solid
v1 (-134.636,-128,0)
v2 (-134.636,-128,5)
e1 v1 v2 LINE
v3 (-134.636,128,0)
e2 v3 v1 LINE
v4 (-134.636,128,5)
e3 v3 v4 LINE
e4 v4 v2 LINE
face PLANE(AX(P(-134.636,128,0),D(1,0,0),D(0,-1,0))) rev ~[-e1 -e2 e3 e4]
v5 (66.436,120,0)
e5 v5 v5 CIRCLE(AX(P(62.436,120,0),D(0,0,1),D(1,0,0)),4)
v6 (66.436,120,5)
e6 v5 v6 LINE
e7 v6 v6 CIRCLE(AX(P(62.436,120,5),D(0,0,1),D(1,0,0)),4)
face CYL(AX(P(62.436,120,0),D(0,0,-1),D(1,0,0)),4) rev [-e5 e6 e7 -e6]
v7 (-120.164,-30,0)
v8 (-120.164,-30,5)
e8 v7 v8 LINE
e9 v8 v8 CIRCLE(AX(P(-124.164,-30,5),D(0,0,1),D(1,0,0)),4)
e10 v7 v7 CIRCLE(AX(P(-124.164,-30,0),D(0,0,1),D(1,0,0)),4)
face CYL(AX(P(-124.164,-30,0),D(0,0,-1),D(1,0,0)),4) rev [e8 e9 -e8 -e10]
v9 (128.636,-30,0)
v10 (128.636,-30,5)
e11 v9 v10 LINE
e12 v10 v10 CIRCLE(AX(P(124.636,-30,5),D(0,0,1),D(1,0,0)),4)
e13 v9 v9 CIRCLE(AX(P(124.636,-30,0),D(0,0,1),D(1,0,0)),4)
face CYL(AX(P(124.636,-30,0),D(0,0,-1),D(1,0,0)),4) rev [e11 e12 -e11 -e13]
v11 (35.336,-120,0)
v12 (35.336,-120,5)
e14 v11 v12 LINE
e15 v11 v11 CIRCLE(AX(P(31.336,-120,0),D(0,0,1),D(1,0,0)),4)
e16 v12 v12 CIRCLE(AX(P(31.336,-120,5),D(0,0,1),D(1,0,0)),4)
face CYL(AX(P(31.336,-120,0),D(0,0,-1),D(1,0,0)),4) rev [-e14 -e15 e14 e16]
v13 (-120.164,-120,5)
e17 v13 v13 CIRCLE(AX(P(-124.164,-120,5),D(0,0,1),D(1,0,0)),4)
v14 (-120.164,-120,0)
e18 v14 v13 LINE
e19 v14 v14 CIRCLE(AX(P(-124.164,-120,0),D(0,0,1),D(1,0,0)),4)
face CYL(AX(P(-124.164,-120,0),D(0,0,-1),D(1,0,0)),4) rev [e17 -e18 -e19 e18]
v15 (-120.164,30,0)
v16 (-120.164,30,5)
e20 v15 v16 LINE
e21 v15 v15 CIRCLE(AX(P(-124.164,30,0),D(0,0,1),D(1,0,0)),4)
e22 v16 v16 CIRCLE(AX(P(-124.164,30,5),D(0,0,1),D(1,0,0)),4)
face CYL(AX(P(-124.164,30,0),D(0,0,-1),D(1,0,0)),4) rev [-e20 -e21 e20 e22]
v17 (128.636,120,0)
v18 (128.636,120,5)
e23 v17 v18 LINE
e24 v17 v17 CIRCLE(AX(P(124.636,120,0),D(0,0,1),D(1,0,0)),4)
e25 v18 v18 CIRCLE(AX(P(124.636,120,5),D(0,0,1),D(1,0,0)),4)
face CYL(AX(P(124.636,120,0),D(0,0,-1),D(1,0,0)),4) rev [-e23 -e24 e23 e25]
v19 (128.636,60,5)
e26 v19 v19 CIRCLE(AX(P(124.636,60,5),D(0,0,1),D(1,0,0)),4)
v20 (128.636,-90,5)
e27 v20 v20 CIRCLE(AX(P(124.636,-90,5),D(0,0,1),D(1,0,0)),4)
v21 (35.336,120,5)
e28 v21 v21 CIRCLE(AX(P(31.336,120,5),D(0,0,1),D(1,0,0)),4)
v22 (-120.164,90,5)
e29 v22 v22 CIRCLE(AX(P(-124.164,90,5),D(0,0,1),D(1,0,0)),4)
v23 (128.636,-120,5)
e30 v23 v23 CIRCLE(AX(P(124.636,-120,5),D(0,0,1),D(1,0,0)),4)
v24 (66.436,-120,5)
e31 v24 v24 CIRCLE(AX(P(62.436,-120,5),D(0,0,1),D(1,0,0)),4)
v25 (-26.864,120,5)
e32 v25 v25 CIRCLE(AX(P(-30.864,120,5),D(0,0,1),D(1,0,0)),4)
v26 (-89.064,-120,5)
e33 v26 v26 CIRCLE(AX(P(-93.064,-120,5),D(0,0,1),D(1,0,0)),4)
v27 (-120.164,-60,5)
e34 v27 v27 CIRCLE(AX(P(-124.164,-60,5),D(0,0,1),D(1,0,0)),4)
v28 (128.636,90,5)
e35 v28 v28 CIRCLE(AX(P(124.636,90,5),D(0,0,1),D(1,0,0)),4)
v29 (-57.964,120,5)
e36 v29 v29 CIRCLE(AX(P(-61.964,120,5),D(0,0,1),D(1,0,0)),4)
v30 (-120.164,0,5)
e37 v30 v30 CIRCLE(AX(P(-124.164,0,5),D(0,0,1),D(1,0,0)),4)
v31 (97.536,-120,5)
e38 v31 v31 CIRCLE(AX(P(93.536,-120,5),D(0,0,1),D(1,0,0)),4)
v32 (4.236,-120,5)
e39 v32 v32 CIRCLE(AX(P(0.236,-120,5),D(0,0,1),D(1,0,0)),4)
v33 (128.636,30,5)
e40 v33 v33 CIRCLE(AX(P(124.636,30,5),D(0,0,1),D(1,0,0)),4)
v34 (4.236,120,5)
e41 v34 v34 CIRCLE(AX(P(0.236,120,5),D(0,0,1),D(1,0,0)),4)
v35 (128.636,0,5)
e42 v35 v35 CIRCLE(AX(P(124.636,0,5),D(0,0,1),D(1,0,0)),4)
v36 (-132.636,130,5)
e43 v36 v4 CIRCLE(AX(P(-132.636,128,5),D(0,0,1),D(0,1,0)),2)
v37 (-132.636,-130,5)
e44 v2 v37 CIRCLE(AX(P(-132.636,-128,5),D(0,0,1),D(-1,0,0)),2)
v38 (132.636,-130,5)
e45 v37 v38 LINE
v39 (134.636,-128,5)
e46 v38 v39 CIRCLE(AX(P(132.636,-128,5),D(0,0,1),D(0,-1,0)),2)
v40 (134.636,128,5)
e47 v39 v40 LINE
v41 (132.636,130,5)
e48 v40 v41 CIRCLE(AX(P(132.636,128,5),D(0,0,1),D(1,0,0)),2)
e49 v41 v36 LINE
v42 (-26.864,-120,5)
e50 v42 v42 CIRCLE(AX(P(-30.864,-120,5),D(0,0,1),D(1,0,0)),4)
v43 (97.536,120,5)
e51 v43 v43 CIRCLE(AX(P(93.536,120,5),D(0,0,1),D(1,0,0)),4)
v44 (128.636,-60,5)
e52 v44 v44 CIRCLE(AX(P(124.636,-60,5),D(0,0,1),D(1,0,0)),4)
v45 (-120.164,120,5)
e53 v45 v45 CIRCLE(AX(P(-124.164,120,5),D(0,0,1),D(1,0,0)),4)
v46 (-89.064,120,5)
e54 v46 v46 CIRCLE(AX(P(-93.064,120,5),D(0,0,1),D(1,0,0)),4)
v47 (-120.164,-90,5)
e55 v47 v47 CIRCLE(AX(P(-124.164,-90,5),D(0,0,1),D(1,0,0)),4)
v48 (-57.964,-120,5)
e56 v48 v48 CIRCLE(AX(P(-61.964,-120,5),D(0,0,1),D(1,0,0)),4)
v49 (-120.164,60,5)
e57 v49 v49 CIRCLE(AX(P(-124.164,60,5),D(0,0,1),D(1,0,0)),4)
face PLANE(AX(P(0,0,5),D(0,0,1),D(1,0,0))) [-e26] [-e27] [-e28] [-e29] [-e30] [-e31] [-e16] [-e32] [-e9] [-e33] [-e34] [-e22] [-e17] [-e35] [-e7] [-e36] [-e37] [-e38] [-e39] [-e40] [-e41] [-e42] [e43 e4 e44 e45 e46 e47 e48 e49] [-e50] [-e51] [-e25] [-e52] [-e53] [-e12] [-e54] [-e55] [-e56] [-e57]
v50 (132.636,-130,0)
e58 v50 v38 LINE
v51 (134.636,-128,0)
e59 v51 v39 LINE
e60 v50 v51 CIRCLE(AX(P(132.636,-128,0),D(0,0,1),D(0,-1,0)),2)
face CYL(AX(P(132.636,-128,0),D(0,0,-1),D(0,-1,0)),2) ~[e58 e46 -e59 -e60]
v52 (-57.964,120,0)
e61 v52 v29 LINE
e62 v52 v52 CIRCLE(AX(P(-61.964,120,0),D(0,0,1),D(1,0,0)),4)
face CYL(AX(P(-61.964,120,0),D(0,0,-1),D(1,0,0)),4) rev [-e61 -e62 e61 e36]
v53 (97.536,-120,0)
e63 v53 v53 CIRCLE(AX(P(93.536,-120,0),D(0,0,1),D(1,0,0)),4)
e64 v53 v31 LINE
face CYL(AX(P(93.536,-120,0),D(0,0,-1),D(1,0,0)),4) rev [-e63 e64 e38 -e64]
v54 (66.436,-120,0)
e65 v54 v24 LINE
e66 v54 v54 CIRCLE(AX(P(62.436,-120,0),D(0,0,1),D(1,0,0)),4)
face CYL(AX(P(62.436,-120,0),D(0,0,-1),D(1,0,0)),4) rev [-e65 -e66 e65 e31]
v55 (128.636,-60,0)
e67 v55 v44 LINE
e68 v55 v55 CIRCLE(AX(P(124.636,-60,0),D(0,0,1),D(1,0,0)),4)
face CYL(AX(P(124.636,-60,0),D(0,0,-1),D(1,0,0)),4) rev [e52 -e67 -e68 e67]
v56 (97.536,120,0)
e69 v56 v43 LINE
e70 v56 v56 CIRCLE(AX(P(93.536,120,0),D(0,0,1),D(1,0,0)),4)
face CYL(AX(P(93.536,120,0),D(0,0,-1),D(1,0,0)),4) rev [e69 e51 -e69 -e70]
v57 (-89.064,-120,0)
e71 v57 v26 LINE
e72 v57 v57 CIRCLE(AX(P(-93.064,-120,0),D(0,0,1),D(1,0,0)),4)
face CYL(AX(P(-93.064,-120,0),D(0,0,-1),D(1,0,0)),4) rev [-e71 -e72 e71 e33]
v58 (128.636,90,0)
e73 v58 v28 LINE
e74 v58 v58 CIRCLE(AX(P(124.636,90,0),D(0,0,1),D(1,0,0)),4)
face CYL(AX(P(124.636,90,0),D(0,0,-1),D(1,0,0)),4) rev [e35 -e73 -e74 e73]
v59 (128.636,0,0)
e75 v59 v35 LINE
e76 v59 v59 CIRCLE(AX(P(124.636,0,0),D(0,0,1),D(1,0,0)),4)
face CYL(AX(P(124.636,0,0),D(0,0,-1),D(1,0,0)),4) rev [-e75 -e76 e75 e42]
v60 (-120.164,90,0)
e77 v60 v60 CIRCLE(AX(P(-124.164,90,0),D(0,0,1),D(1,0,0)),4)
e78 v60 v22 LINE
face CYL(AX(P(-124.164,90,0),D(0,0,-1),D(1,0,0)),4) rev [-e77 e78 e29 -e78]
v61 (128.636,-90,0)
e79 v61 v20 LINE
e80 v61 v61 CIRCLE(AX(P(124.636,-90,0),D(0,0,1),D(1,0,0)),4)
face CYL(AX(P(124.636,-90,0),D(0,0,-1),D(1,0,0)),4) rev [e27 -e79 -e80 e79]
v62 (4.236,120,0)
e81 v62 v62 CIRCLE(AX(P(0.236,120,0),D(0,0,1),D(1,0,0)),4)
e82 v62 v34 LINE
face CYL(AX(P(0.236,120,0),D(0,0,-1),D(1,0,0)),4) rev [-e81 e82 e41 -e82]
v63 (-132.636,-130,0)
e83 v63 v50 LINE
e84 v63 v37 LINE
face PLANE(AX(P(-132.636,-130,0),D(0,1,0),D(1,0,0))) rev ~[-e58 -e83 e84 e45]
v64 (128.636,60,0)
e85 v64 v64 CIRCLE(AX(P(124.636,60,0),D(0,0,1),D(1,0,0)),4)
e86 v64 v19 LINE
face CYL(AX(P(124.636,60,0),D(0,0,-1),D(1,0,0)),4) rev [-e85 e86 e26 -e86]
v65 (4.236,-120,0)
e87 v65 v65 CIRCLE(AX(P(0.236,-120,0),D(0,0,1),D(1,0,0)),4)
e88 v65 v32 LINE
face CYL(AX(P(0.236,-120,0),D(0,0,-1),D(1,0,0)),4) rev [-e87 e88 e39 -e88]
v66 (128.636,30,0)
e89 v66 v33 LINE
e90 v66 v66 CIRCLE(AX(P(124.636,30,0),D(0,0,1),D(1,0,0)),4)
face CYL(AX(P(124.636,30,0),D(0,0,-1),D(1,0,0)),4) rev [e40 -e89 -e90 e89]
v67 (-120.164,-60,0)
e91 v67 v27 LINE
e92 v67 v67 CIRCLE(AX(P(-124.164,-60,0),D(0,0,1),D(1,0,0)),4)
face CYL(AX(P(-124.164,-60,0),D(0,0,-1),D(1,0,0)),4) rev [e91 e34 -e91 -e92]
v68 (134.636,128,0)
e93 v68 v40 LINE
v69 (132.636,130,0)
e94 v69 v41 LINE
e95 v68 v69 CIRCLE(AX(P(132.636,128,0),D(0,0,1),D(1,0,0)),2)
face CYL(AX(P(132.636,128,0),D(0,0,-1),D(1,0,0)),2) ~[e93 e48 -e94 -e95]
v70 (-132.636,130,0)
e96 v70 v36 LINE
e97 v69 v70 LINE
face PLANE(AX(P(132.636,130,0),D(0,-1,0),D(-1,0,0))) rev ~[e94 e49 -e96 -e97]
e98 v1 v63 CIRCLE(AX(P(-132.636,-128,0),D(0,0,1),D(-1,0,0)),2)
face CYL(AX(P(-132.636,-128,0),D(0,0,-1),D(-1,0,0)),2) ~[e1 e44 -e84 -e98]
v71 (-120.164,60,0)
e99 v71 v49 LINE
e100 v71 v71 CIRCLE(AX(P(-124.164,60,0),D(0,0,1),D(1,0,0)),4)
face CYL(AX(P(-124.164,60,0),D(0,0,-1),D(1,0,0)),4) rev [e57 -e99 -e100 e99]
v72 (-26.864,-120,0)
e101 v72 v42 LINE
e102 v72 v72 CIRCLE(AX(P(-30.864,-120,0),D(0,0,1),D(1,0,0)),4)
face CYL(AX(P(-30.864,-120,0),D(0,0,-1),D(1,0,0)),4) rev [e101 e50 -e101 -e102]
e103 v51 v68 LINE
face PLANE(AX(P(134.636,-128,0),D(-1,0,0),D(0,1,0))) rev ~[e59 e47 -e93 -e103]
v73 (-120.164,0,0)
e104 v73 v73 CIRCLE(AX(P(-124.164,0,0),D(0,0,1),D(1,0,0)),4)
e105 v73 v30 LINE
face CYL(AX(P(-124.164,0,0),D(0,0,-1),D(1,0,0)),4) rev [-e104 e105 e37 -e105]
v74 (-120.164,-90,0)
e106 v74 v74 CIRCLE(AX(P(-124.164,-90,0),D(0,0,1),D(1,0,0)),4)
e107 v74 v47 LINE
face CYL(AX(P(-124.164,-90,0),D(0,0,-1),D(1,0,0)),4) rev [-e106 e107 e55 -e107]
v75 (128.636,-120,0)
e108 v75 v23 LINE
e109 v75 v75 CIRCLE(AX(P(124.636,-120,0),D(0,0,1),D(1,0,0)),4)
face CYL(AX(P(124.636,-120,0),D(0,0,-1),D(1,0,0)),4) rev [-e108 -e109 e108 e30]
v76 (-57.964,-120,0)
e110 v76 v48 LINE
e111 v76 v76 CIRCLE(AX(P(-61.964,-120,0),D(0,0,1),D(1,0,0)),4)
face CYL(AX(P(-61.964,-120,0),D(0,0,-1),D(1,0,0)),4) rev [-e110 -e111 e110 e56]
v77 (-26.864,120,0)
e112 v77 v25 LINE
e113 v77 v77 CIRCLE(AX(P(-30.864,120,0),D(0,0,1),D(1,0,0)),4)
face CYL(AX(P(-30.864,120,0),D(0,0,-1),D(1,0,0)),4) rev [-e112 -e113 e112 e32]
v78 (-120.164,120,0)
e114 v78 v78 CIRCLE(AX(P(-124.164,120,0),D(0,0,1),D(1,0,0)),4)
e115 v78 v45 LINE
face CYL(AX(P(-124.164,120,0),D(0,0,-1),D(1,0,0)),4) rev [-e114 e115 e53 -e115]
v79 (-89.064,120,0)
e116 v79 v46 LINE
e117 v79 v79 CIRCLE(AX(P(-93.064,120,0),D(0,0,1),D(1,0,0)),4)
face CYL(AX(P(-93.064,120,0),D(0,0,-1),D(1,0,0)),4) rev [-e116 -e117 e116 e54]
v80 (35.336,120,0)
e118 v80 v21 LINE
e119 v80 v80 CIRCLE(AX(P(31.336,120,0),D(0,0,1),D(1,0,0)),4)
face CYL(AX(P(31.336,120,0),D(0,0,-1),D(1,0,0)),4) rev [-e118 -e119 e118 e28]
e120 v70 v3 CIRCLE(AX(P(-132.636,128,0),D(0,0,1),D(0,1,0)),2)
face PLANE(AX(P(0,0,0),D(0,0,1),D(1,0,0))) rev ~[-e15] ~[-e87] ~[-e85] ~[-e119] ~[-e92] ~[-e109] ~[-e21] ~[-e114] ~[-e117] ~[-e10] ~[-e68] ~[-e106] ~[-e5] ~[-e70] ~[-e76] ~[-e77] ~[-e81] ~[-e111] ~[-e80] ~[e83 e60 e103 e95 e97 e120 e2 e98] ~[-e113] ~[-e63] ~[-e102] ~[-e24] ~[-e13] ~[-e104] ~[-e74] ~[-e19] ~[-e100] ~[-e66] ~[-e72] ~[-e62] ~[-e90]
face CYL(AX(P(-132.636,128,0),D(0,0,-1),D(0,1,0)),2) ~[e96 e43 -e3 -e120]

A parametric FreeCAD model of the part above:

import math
import FreeCAD as App
import Part
import Sketcher
from FreeCAD import Vector

doc = App.newDocument("Part")
params = doc.addObject("Spreadsheet::Sheet", "Params")
for row, (alias, value) in enumerate([
    ("sketch1_diameter", "8 mm"),
    ("sketch1_radius", "2 mm"),
    ("sketch1_height", "256 mm"),
    ("pad1_length", "5 mm"),
], start=1):
    params.set(f"A{row}", alias)
    params.set(f"B{row}", "=" + value)
    params.setAlias(f"B{row}", alias)

body = doc.addObject("PartDesign::Body", "Body")

# Sketch on XY plane
sketch1 = doc.addObject("Sketcher::SketchObject", "Sketch")
body.addObject(sketch1)
sketch1.AttachmentSupport = (doc.XY_Plane, [""])
sketch1.MapMode = "FlatFace"
sketch1.addGeometry([
    Part.ArcOfCircle(Part.Circle(Vector(-132.6, -128, 0), Vector(0, 0, 1), 2), math.radians(180), math.radians(270)),  # 0
    Part.LineSegment(Vector(-132.6, -130, 0), Vector(132.6, -130, 0)),  # 1
    Part.ArcOfCircle(Part.Circle(Vector(132.6, -128, 0), Vector(0, 0, 1), 2), math.radians(-90), math.radians(0)),  # 2
    Part.LineSegment(Vector(134.6, -128, 0), Vector(134.6, 128, 0)),  # 3
    Part.ArcOfCircle(Part.Circle(Vector(132.6, 128, 0), Vector(0, 0, 1), 2), math.radians(0), math.radians(90)),  # 4
    Part.LineSegment(Vector(132.6, 130, 0), Vector(-132.6, 130, 0)),  # 5
    Part.ArcOfCircle(Part.Circle(Vector(-132.6, 128, 0), Vector(0, 0, 1), 2), math.radians(90), math.radians(180)),  # 6
    Part.LineSegment(Vector(-134.6, 128, 0), Vector(-134.6, -128, 0)),  # 7
    Part.Circle(Vector(-124.2, -120, 0), Vector(0, 0, 1), 4),  # 8
    Part.Circle(Vector(-93.1, -120, 0), Vector(0, 0, 1), 4),  # 9
    Part.Circle(Vector(-124.2, -90, 0), Vector(0, 0, 1), 4),  # 10
    Part.Circle(Vector(-62, -120, 0), Vector(0, 0, 1), 4),  # 11
    Part.Circle(Vector(-30.9, -120, 0), Vector(0, 0, 1), 4),  # 12
    Part.Circle(Vector(-124.2, -60, 0), Vector(0, 0, 1), 4),  # 13
    Part.Circle(Vector(-124.2, -30, 0), Vector(0, 0, 1), 4),  # 14
    Part.Circle(Vector(0.2, -120, 0), Vector(0, 0, 1), 4),  # 15
    Part.Circle(Vector(31.3, -120, 0), Vector(0, 0, 1), 4),  # 16
    Part.Circle(Vector(62.4, -120, 0), Vector(0, 0, 1), 4),  # 17
    Part.Circle(Vector(93.5, -120, 0), Vector(0, 0, 1), 4),  # 18
    Part.Circle(Vector(124.6, -120, 0), Vector(0, 0, 1), 4),  # 19
    Part.Circle(Vector(124.6, -90, 0), Vector(0, 0, 1), 4),  # 20
    Part.Circle(Vector(124.6, -60, 0), Vector(0, 0, 1), 4),  # 21
    Part.Circle(Vector(124.6, -30, 0), Vector(0, 0, 1), 4),  # 22
    Part.Circle(Vector(-124.2, 0, 0), Vector(0, 0, 1), 4),  # 23
    Part.Circle(Vector(-124.2, 30, 0), Vector(0, 0, 1), 4),  # 24
    Part.Circle(Vector(-124.2, 60, 0), Vector(0, 0, 1), 4),  # 25
    Part.Circle(Vector(-124.2, 90, 0), Vector(0, 0, 1), 4),  # 26
    Part.Circle(Vector(-124.2, 120, 0), Vector(0, 0, 1), 4),  # 27
    Part.Circle(Vector(-93.1, 120, 0), Vector(0, 0, 1), 4),  # 28
    Part.Circle(Vector(-62, 120, 0), Vector(0, 0, 1), 4),  # 29
    Part.Circle(Vector(-30.9, 120, 0), Vector(0, 0, 1), 4),  # 30
    Part.Circle(Vector(124.6, 0, 0), Vector(0, 0, 1), 4),  # 31
    Part.Circle(Vector(124.6, 30, 0), Vector(0, 0, 1), 4),  # 32
    Part.Circle(Vector(124.6, 60, 0), Vector(0, 0, 1), 4),  # 33
    Part.Circle(Vector(0.2, 120, 0), Vector(0, 0, 1), 4),  # 34
    Part.Circle(Vector(31.3, 120, 0), Vector(0, 0, 1), 4),  # 35
    Part.Circle(Vector(62.4, 120, 0), Vector(0, 0, 1), 4),  # 36
    Part.Circle(Vector(124.6, 90, 0), Vector(0, 0, 1), 4),  # 37
    Part.Circle(Vector(93.5, 120, 0), Vector(0, 0, 1), 4),  # 38
    Part.Circle(Vector(124.6, 120, 0), Vector(0, 0, 1), 4),  # 39
], False)
sketch1.addConstraint([
    Sketcher.Constraint("Tangent", 0, 2, 1, 1),
    Sketcher.Constraint("Tangent", 1, 2, 2, 1),
    Sketcher.Constraint("Tangent", 2, 2, 3, 1),
    Sketcher.Constraint("Tangent", 3, 2, 4, 1),
    Sketcher.Constraint("Tangent", 4, 2, 5, 1),
    Sketcher.Constraint("Tangent", 5, 2, 6, 1),
    Sketcher.Constraint("Tangent", 6, 2, 7, 1),
    Sketcher.Constraint("Tangent", 7, 2, 0, 1),
    Sketcher.Constraint("Horizontal", 1),
    Sketcher.Constraint("Vertical", 3),
    Sketcher.Constraint("Horizontal", 5),
    Sketcher.Constraint("Vertical", 7),
    Sketcher.Constraint("Equal", 0, 2),
    Sketcher.Constraint("Equal", 2, 4),
    Sketcher.Constraint("Equal", 4, 6),
    Sketcher.Constraint("Equal", 8, 9),
    Sketcher.Constraint("Equal", 9, 10),
    Sketcher.Constraint("Equal", 10, 11),
    Sketcher.Constraint("Equal", 11, 12),
    Sketcher.Constraint("Equal", 12, 13),
    Sketcher.Constraint("Equal", 13, 14),
    Sketcher.Constraint("Equal", 14, 15),
    Sketcher.Constraint("Equal", 15, 16),
    Sketcher.Constraint("Equal", 16, 17),
    Sketcher.Constraint("Equal", 17, 18),
    Sketcher.Constraint("Equal", 18, 19),
    Sketcher.Constraint("Equal", 19, 20),
    Sketcher.Constraint("Equal", 20, 21),
    Sketcher.Constraint("Equal", 21, 22),
    Sketcher.Constraint("Equal", 22, 23),
    Sketcher.Constraint("Equal", 23, 24),
    Sketcher.Constraint("Equal", 24, 25),
    Sketcher.Constraint("Equal", 25, 26),
    Sketcher.Constraint("Equal", 26, 27),
    Sketcher.Constraint("Equal", 27, 28),
    Sketcher.Constraint("Equal", 28, 29),
    Sketcher.Constraint("Equal", 29, 30),
    Sketcher.Constraint("Equal", 30, 31),
    Sketcher.Constraint("Equal", 31, 32),
    Sketcher.Constraint("Equal", 32, 33),
    Sketcher.Constraint("Equal", 33, 34),
    Sketcher.Constraint("Equal", 34, 35),
    Sketcher.Constraint("Equal", 35, 36),
    Sketcher.Constraint("Equal", 36, 37),
    Sketcher.Constraint("Equal", 37, 38),
    Sketcher.Constraint("Equal", 38, 39),
    Sketcher.Constraint("Symmetric", 0, 3, 4, 3, -1, 1),
    Sketcher.Constraint("Symmetric", 14, 3, 24, 3, -1),
    Sketcher.Constraint("Symmetric", 13, 3, 25, 3, -1),
    Sketcher.Constraint("Symmetric", 10, 3, 26, 3, -1),
    Sketcher.Constraint("Symmetric", 8, 3, 27, 3, -1),
    Sketcher.Constraint("Symmetric", 9, 3, 28, 3, -1),
    Sketcher.Constraint("Symmetric", 11, 3, 29, 3, -1),
    Sketcher.Constraint("Symmetric", 12, 3, 30, 3, -1),
    Sketcher.Constraint("Symmetric", 22, 3, 32, 3, -1),
    Sketcher.Constraint("Symmetric", 21, 3, 33, 3, -1),
    Sketcher.Constraint("Symmetric", 15, 3, 34, 3, -1),
    Sketcher.Constraint("Symmetric", 16, 3, 35, 3, -1),
    Sketcher.Constraint("Symmetric", 17, 3, 36, 3, -1),
    Sketcher.Constraint("Symmetric", 20, 3, 37, 3, -1),
    Sketcher.Constraint("Symmetric", 18, 3, 38, 3, -1),
    Sketcher.Constraint("Symmetric", 19, 3, 39, 3, -1),
    Sketcher.Constraint("PointOnObject", 23, 3, -1),
    Sketcher.Constraint("PointOnObject", 31, 3, -1),
    Sketcher.Constraint("Horizontal", 8, 3, 9, 3),
    Sketcher.Constraint("Horizontal", 9, 3, 11, 3),
    Sketcher.Constraint("Horizontal", 11, 3, 12, 3),
    Sketcher.Constraint("Horizontal", 12, 3, 15, 3),
    Sketcher.Constraint("Horizontal", 15, 3, 16, 3),
    Sketcher.Constraint("Horizontal", 16, 3, 17, 3),
    Sketcher.Constraint("Horizontal", 17, 3, 18, 3),
    Sketcher.Constraint("Horizontal", 18, 3, 19, 3),
    Sketcher.Constraint("Horizontal", 10, 3, 20, 3),
    Sketcher.Constraint("Horizontal", 13, 3, 21, 3),
    Sketcher.Constraint("Horizontal", 14, 3, 22, 3),
    Sketcher.Constraint("Vertical", 8, 3, 10, 3),
    Sketcher.Constraint("Vertical", 10, 3, 13, 3),
    Sketcher.Constraint("Vertical", 13, 3, 14, 3),
    Sketcher.Constraint("Vertical", 19, 3, 20, 3),
    Sketcher.Constraint("Vertical", 20, 3, 21, 3),
    Sketcher.Constraint("Vertical", 21, 3, 22, 3),
    Sketcher.Constraint("Vertical", 14, 3, 23, 3),
    Sketcher.Constraint("Vertical", 22, 3, 31, 3),
    Sketcher.Constraint("Diameter", 8, 8.0),
    Sketcher.Constraint("Radius", 0, 2.0),
    Sketcher.Constraint("DistanceY", 3, 1, 3, 2, 256.0),
    Sketcher.Constraint("DistanceY", 8, 3, -1, 1, 120.0),
    Sketcher.Constraint("DistanceY", 10, 3, -1, 1, 90.0),
    Sketcher.Constraint("DistanceY", 13, 3, -1, 1, 60.0),
    Sketcher.Constraint("DistanceY", 14, 3, -1, 1, 30.0),
    Sketcher.Constraint("DistanceX", 19, 3, 2, 3, 8.0),
    Sketcher.Constraint("DistanceX", 8, 3, 2, 3, 256.8),
    Sketcher.Constraint("DistanceX", 8, 3, 9, 3, 31.1),
    Sketcher.Constraint("DistanceX", 9, 3, 11, 3, 31.1),
    Sketcher.Constraint("DistanceX", 11, 3, 12, 3, 31.1),
    Sketcher.Constraint("DistanceX", 12, 3, 15, 3, 31.1),
    Sketcher.Constraint("DistanceX", 15, 3, 16, 3, 31.1),
    Sketcher.Constraint("DistanceX", 16, 3, 17, 3, 31.1),
    Sketcher.Constraint("DistanceX", 17, 3, 18, 3, 31.1),
    Sketcher.Constraint("DistanceX", 1, 1, 1, 2, 265.272),
])
sketch1.setExpression("Constraints[83]", "Params.sketch1_diameter")
sketch1.setExpression("Constraints[84]", "Params.sketch1_radius")
sketch1.setExpression("Constraints[85]", "Params.sketch1_height")
pad1 = doc.addObject("PartDesign::Pad", "Pad")
body.addObject(pad1)
pad1.Profile = sketch1
pad1.setExpression("Length", "Params.pad1_length")

doc.recompute()
